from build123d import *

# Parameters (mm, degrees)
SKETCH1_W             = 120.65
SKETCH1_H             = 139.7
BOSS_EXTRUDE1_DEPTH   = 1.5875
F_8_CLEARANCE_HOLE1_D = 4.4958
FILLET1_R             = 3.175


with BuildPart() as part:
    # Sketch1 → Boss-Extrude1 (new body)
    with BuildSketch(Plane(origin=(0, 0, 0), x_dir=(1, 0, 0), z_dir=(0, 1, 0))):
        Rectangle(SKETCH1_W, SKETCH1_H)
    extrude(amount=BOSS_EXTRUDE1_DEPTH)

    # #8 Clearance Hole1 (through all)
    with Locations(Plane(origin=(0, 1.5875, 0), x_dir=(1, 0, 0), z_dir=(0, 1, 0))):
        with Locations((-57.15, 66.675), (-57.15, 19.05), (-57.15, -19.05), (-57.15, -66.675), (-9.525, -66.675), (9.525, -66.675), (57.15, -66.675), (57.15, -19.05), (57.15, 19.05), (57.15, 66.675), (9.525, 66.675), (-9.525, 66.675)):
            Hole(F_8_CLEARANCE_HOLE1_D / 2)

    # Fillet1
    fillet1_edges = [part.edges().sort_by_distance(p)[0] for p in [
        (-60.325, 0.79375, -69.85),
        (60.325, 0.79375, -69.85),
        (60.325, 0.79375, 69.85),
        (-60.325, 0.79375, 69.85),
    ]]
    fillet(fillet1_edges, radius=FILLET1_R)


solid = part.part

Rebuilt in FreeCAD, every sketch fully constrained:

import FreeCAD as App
import Part
import Sketcher

V = App.Vector
Q = App.Units.Quantity


def edges_at(feature, points):
    """Names of the edges that pass closest to the given points."""
    edges = feature.Shape.Edges
    near = lambda p: min(range(len(edges)), key=lambda i: edges[i].distToShape(Part.Vertex(*p))[0])
    return sorted({f"Edge{near(p) + 1}" for p in points})

doc = App.newDocument("Part")
body = doc.addObject("PartDesign::Body", "Body")

# Sketch on XZ plane
sketch1 = doc.addObject("Sketcher::SketchObject", "Sketch")
body.addObject(sketch1)
sketch1.AttachmentSupport = (doc.XZ_Plane, [""])
sketch1.MapMode = "FlatFace"
sketch1.addGeometry(Part.LineSegment(V(-60, -70, 0), V(-60, 70, 0)), False)
sketch1.addGeometry(Part.LineSegment(V(-60, 70, 0), V(60, 70, 0)), False)
sketch1.addGeometry(Part.LineSegment(V(60, 70, 0), V(60, -70, 0)), False)
sketch1.addGeometry(Part.LineSegment(V(60, -70, 0), V(-60, -70, 0)), False)
sketch1.addConstraint(Sketcher.Constraint("Coincident", 0, 2, 1, 1))
sketch1.addConstraint(Sketcher.Constraint("Coincident", 1, 2, 2, 1))
sketch1.addConstraint(Sketcher.Constraint("Coincident", 2, 2, 3, 1))
sketch1.addConstraint(Sketcher.Constraint("Coincident", 3, 2, 0, 1))
sketch1.addConstraint(Sketcher.Constraint("Vertical", 0))
sketch1.addConstraint(Sketcher.Constraint("Horizontal", 1))
sketch1.addConstraint(Sketcher.Constraint("Vertical", 2))
sketch1.addConstraint(Sketcher.Constraint("Horizontal", 3))
sketch1.addConstraint(Sketcher.Constraint("Symmetric", 0, 2, 2, 2, -1, 1))
sketch1.addConstraint(Sketcher.Constraint("DistanceY", 0, 1, 0, 2, Q("5.5 in")))
sketch1.addConstraint(Sketcher.Constraint("DistanceX", 1, 1, 1, 2, Q("4.75 in")))
pad1 = doc.addObject("PartDesign::Pad", "Pad")
body.addObject(pad1)
pad1.Profile = sketch1
pad1.Length = Q("0.0625 in")
pad1.Reversed = True

# Sketch on XZ plane
sketch2 = doc.addObject("Sketcher::SketchObject", "Sketch001")
body.addObject(sketch2)
sketch2.AttachmentSupport = (doc.XZ_Plane, [""])
sketch2.MapMode = "FlatFace"
sketch2.AttachmentOffset = App.Placement(V(0, 0, -0.0625 * 25.4), App.Rotation())
sketch2.addGeometry(Part.Circle(V(-57.1, -66.7, 0), V(0, 0, 1), 2.2), False)
sketch2.addGeometry(Part.Circle(V(-57.1, -19.1, 0), V(0, 0, 1), 2.2), False)
sketch2.addGeometry(Part.Circle(V(-57.1, 19.1, 0), V(0, 0, 1), 2.2), False)
sketch2.addGeometry(Part.Circle(V(-57.1, 66.7, 0), V(0, 0, 1), 2.2), False)
sketch2.addGeometry(Part.Circle(V(-9.5, 66.7, 0), V(0, 0, 1), 2.2), False)
sketch2.addGeometry(Part.Circle(V(9.5, 66.7, 0), V(0, 0, 1), 2.2), False)
sketch2.addGeometry(Part.Circle(V(57.1, 66.7, 0), V(0, 0, 1), 2.2), False)
sketch2.addGeometry(Part.Circle(V(57.1, 19.1, 0), V(0, 0, 1), 2.2), False)
sketch2.addGeometry(Part.Circle(V(57.1, -19.1, 0), V(0, 0, 1), 2.2), False)
sketch2.addGeometry(Part.Circle(V(57.1, -66.7, 0), V(0, 0, 1), 2.2), False)
sketch2.addGeometry(Part.Circle(V(9.5, -66.7, 0), V(0, 0, 1), 2.2), False)
sketch2.addGeometry(Part.Circle(V(-9.5, -66.7, 0), V(0, 0, 1), 2.2), False)
sketch2.addConstraint(Sketcher.Constraint("Equal", 0, 1))
sketch2.addConstraint(Sketcher.Constraint("Equal", 1, 2))
sketch2.addConstraint(Sketcher.Constraint("Equal", 2, 3))
sketch2.addConstraint(Sketcher.Constraint("Equal", 3, 4))
sketch2.addConstraint(Sketcher.Constraint("Equal", 4, 5))
sketch2.addConstraint(Sketcher.Constraint("Equal", 5, 6))
sketch2.addConstraint(Sketcher.Constraint("Equal", 6, 7))
sketch2.addConstraint(Sketcher.Constraint("Equal", 7, 8))
sketch2.addConstraint(Sketcher.Constraint("Equal", 8, 9))
sketch2.addConstraint(Sketcher.Constraint("Equal", 9, 10))
sketch2.addConstraint(Sketcher.Constraint("Equal", 10, 11))
sketch2.addConstraint(Sketcher.Constraint("Symmetric", 0, 3, 6, 3, -1, 1))
sketch2.addConstraint(Sketcher.Constraint("Symmetric", 1, 3, 7, 3, -1, 1))
sketch2.addConstraint(Sketcher.Constraint("Symmetric", 2, 3, 8, 3, -1, 1))
sketch2.addConstraint(Sketcher.Constraint("Symmetric", 3, 3, 9, 3, -1, 1))
sketch2.addConstraint(Sketcher.Constraint("Symmetric", 4, 3, 10, 3, -1, 1))
sketch2.addConstraint(Sketcher.Constraint("Symmetric", 5, 3, 11, 3, -1, 1))
sketch2.addConstraint(Sketcher.Constraint("Symmetric", 4, 3, 5, 3, -2))
sketch2.addConstraint(Sketcher.Constraint("Symmetric", 3, 3, 6, 3, -2))
sketch2.addConstraint(Sketcher.Constraint("Symmetric", 2, 3, 7, 3, -2))
sketch2.addConstraint(Sketcher.Constraint("Horizontal", 3, 3, 4, 3))
sketch2.addConstraint(Sketcher.Constraint("Vertical", 0, 3, 1, 3))
sketch2.addConstraint(Sketcher.Constraint("Diameter", 0, Q("0.177 in")))
sketch2.addConstraint(Sketcher.Constraint("DistanceY", 1, 3, 2, 3, Q("1.5 in")))
sketch2.addConstraint(Sketcher.Constraint("DistanceX", 3, 3, 6, 3, Q("4.5 in")))
sketch2.addConstraint(Sketcher.Constraint("DistanceY", 0, 3, 3, 3, Q("5.25 in")))
sketch2.addConstraint(Sketcher.Constraint("DistanceX", 4, 3, 5, 3, Q("0.75 in")))
doc.recompute()
hole = doc.addObject("PartDesign::Hole", "Hole")
body.addObject(hole)
hole.Profile = sketch2
hole.ThreadType = "None"
hole.Diameter = Q("0.177 in")
hole.DepthType = "ThroughAll"
hole.Reversed = True
doc.recompute()

fillet = doc.addObject("PartDesign::Fillet", "Fillet")
body.addObject(fillet)
fillet.Base = (hole, edges_at(hole, [
    (-60.325, 0.794, -69.85),
    (60.325, 0.794, -69.85),
    (60.325, 0.794, 69.85),
    (-60.325, 0.794, 69.85),
]))
fillet.Radius = Q("0.125 in")

doc.recompute()
